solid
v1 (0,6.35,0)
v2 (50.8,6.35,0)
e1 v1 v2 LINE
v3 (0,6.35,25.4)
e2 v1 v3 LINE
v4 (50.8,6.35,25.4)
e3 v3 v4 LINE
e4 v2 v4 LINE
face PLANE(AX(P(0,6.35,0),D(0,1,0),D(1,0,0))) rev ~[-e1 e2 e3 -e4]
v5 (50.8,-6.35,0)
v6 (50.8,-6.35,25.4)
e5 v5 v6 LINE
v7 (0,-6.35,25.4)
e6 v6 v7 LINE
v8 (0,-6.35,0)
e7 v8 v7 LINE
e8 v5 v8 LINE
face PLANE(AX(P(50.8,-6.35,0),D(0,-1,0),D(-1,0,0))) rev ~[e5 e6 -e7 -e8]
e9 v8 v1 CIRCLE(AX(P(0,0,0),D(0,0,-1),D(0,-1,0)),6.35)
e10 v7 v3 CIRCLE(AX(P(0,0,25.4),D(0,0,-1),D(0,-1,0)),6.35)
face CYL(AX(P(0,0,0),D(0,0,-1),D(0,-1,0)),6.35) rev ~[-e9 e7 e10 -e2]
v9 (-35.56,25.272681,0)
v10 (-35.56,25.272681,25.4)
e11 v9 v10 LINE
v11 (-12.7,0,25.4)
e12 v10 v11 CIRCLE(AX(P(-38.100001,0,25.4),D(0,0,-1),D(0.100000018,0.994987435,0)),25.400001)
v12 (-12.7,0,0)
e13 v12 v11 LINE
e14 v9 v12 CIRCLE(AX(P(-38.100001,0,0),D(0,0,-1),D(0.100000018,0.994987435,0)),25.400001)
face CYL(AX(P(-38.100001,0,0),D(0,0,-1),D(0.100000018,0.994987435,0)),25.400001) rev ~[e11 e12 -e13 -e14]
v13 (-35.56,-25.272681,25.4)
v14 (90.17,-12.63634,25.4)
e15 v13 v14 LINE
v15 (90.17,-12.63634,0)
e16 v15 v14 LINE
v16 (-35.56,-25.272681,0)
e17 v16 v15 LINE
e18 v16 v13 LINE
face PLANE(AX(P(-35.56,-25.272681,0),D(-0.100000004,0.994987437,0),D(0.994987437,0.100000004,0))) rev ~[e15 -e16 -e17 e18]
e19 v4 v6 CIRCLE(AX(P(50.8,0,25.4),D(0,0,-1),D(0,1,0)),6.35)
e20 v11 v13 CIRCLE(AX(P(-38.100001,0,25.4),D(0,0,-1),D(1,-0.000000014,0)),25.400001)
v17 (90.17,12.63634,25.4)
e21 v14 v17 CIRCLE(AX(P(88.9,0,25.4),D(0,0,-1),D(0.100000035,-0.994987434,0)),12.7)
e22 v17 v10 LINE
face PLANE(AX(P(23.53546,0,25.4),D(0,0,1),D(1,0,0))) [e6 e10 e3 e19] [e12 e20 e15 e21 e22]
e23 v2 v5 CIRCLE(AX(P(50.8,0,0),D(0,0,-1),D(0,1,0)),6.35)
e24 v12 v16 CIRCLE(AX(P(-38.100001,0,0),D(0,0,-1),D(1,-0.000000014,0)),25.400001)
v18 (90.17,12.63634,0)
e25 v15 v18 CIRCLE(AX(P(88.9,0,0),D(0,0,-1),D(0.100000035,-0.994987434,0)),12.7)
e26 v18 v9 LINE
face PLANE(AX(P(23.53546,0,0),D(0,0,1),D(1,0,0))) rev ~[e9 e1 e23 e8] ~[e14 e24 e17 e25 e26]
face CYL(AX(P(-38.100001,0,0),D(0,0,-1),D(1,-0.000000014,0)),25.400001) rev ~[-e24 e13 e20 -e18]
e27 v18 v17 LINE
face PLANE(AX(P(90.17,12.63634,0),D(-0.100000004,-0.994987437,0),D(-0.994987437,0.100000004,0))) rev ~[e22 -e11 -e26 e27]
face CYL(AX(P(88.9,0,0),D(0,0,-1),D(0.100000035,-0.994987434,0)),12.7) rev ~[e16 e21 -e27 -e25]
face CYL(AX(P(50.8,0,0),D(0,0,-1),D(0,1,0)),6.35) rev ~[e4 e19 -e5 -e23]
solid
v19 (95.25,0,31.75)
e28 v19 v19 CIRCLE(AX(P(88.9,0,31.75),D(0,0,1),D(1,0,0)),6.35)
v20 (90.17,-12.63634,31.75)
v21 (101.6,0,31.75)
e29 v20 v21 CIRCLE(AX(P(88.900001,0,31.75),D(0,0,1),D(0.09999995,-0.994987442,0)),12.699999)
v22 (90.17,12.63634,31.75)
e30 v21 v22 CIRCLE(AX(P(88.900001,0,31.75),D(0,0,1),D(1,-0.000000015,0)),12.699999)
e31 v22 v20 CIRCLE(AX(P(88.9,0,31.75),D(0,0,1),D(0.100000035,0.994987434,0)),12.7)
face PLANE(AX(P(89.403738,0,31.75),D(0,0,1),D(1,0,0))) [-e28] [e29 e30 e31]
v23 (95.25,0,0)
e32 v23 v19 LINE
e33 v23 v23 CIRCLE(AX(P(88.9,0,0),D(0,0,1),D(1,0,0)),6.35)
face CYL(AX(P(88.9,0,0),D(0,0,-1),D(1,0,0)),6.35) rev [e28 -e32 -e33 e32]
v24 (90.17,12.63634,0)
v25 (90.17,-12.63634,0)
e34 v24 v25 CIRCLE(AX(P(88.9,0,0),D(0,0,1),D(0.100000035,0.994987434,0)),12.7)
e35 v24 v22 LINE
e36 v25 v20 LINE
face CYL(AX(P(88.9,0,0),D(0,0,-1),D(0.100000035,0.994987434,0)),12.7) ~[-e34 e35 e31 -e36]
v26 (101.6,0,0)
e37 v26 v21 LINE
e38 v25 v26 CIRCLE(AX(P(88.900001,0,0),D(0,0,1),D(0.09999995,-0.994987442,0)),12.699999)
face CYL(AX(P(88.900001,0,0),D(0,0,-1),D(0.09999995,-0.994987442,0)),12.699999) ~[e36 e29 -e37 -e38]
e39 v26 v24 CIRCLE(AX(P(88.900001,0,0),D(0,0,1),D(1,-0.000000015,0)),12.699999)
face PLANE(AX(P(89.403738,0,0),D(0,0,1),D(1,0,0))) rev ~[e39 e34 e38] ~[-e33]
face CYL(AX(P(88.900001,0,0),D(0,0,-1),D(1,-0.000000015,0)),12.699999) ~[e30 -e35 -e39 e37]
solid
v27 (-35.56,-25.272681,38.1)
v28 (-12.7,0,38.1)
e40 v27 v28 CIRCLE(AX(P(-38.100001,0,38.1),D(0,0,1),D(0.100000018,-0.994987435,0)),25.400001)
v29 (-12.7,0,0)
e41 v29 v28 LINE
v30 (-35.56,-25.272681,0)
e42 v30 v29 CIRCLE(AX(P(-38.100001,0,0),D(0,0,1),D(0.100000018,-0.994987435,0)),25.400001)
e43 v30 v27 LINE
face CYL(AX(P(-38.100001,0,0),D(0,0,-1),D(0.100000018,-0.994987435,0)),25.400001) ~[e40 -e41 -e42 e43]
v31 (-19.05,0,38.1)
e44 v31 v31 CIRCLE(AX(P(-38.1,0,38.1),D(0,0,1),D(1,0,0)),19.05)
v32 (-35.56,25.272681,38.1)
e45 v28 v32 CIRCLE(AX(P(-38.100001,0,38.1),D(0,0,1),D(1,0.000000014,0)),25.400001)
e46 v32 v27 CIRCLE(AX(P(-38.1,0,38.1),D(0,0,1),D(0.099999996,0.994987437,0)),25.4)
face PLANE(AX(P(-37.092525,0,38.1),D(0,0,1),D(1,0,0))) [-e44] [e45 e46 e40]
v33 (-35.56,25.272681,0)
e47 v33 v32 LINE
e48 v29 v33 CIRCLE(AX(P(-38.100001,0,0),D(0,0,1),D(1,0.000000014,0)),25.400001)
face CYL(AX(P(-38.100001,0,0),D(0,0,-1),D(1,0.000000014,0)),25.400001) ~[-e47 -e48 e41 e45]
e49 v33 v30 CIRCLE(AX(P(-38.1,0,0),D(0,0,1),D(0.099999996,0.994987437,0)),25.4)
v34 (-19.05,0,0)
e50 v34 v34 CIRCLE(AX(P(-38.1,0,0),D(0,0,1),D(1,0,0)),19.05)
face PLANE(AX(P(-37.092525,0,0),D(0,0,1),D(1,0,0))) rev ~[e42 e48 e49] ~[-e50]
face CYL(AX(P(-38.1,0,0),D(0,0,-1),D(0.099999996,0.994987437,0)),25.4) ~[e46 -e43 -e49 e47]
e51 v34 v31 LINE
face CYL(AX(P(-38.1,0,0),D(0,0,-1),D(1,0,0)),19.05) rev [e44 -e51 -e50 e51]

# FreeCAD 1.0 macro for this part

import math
import FreeCAD as App
import Part
import Sketcher

V = App.Vector
Q = App.Units.Quantity

doc = App.newDocument("Part")
body = doc.addObject("PartDesign::Body", "Body")

# Sketch on XY plane
sketch1 = body.newObject("Sketcher::SketchObject", "Sketch")
sketch1.AttachmentSupport = (doc.getObject("XY_Plane"), [""])
sketch1.MapMode = "FlatFace"
sketch1.addGeometry(Part.ArcOfCircle(Part.Circle(V(-38, 0, 0), V(0, 0, 1), 25), math.radians(0), math.radians(84)), False)
sketch1.addGeometry(Part.ArcOfCircle(Part.Circle(V(-38, 0, 0), V(0, 0, 1), 25), math.radians(84), math.radians(276)), False)
sketch1.addGeometry(Part.ArcOfCircle(Part.Circle(V(-38, 0, 0), V(0, 0, 1), 25), math.radians(-84), math.radians(0)), False)
sketch1.addGeometry(Part.Circle(V(-38, 0, 0), V(0, 0, 1), 19), False)
sketch1.addConstraint(Sketcher.Constraint("Tangent", 0, 2, 1, 1))
sketch1.addConstraint(Sketcher.Constraint("Tangent", 1, 2, 2, 1))
sketch1.addConstraint(Sketcher.Constraint("Tangent", 2, 2, 0, 1))
sketch1.addConstraint(Sketcher.Constraint("Coincident", 3, 3, 0, 3))
sketch1.addConstraint(Sketcher.Constraint("Symmetric", 0, 2, 1, 2, -1))
sketch1.addConstraint(Sketcher.Constraint("PointOnObject", 2, 2, -1))
sketch1.addConstraint(Sketcher.Constraint("Radius", 0, Q("1 in")))
sketch1.addConstraint(Sketcher.Constraint("Diameter", 3, Q("1.5 in")))
sketch1.addConstraint(Sketcher.Constraint("DistanceX", 0, 3, -1, 1, Q("1.5 in")))
sketch1.addConstraint(Sketcher.Constraint("DistanceX", 0, 2, -1, 1, Q("1.4 in")))
pad1 = body.newObject("PartDesign::Pad", "Pad")
pad1.Profile = sketch1
pad1.Length = Q("1.5 in")
body2 = doc.addObject("PartDesign::Body", "Body001")

# Sketch on XY plane
sketch2 = body2.newObject("Sketcher::SketchObject", "Sketch001")
sketch2.AttachmentSupport = (doc.getObject("XY_Plane001"), [""])
sketch2.MapMode = "FlatFace"
sketch2.addGeometry(Part.ArcOfCircle(Part.Circle(V(89, 0, 0), V(0, 0, 1), 13), math.radians(-84), math.radians(0)), False)
sketch2.addGeometry(Part.ArcOfCircle(Part.Circle(V(89, 0, 0), V(0, 0, 1), 13), math.radians(0), math.radians(84)), False)
sketch2.addGeometry(Part.ArcOfCircle(Part.Circle(V(89, 0, 0), V(0, 0, 1), 13), math.radians(84), math.radians(276)), False)
sketch2.addGeometry(Part.Circle(V(89, 0, 0), V(0, 0, 1), 6), False)
sketch2.addConstraint(Sketcher.Constraint("Tangent", 0, 2, 1, 1))
sketch2.addConstraint(Sketcher.Constraint("Tangent", 1, 2, 2, 1))
sketch2.addConstraint(Sketcher.Constraint("Tangent", 2, 2, 0, 1))
sketch2.addConstraint(Sketcher.Constraint("Coincident", 3, 3, 0, 3))
sketch2.addConstraint(Sketcher.Constraint("Symmetric", 1, 2, 2, 2, -1))
sketch2.addConstraint(Sketcher.Constraint("PointOnObject", 0, 2, -1))
sketch2.addConstraint(Sketcher.Constraint("Diameter", 3, Q("0.5 in")))
sketch2.addConstraint(Sketcher.Constraint("Radius", 0, Q("0.5 in")))
sketch2.addConstraint(Sketcher.Constraint("DistanceX", -1, 1, 0, 2, Q("4 in")))
sketch2.addConstraint(Sketcher.Constraint("DistanceX", -1, 1, 1, 2, Q("3.55 in")))
pad2 = body2.newObject("PartDesign::Pad", "Pad001")
pad2.Profile = sketch2
pad2.Length = Q("1.25 in")
body3 = doc.addObject("PartDesign::Body", "Body002")

# Sketch on XY plane
sketch3 = body3.newObject("Sketcher::SketchObject", "Sketch002")
sketch3.AttachmentSupport = (doc.getObject("XY_Plane002"), [""])
sketch3.MapMode = "FlatFace"
sketch3.addGeometry(Part.ArcOfCircle(Part.Circle(V(89, 0, 0), V(0, 0, 1), 13), math.radians(84), math.radians(276)), False)
sketch3.addGeometry(Part.LineSegment(V(90, 13, 0), V(-36, 25, 0)), False)
sketch3.addGeometry(Part.ArcOfCircle(Part.Circle(V(-38, 0, 0), V(0, 0, 1), 25), math.radians(0), math.radians(84)), False)
sketch3.addGeometry(Part.ArcOfCircle(Part.Circle(V(-38, 0, 0), V(0, 0, 1), 25), math.radians(-84), math.radians(0)), False)
sketch3.addGeometry(Part.LineSegment(V(-36, -25, 0), V(90, -13, 0)), False)
sketch3.addGeometry(Part.LineSegment(V(51, -6, 0), V(0, -6, 0)), False)
sketch3.addGeometry(Part.ArcOfCircle(Part.Circle(V(0, 0, 0), V(0, 0, 1), 6), math.radians(90), math.radians(270)), False)
sketch3.addGeometry(Part.LineSegment(V(0, 6, 0), V(51, 6, 0)), False)
sketch3.addGeometry(Part.ArcOfCircle(Part.Circle(V(51, 0, 0), V(0, 0, 1), 6), math.radians(-90), math.radians(90)), False)
sketch3.addConstraint(Sketcher.Constraint("Tangent", 0, 1, 1, 1))
sketch3.addConstraint(Sketcher.Constraint("Tangent", 1, 2, 2, 2))
sketch3.addConstraint(Sketcher.Constraint("Tangent", 2, 1, 3, 2))
sketch3.addConstraint(Sketcher.Constraint("Tangent", 3, 1, 4, 1))
sketch3.addConstraint(Sketcher.Constraint("Tangent", 4, 2, 0, 2))
sketch3.addConstraint(Sketcher.Constraint("Tangent", 5, 2, 6, 2))
sketch3.addConstraint(Sketcher.Constraint("Tangent", 6, 1, 7, 1))
sketch3.addConstraint(Sketcher.Constraint("Tangent", 7, 2, 8, 2))
sketch3.addConstraint(Sketcher.Constraint("Tangent", 8, 1, 5, 1))
sketch3.addConstraint(Sketcher.Constraint("Horizontal", 5))
sketch3.addConstraint(Sketcher.Constraint("Horizontal", 7))
sketch3.addConstraint(Sketcher.Constraint("Coincident", 6, 3, -1, 1))
sketch3.addConstraint(Sketcher.Constraint("Equal", 2, 3))
sketch3.addConstraint(Sketcher.Constraint("Symmetric", 1, 2, 3, 1, -1))
sketch3.addConstraint(Sketcher.Constraint("PointOnObject", 2, 1, -1))
sketch3.addConstraint(Sketcher.Constraint("Radius", 2, Q("1 in")))
sketch3.addConstraint(Sketcher.Constraint("Radius", 0, Q("0.5 in")))
sketch3.addConstraint(Sketcher.Constraint("DistanceX", 5, 2, 5, 1, Q("2 in")))
sketch3.addConstraint(Sketcher.Constraint("Radius", 6, Q("0.25 in")))
sketch3.addConstraint(Sketcher.Constraint("DistanceX", 2, 3, 0, 3, Q("5 in")))
sketch3.addConstraint(Sketcher.Constraint("DistanceX", -1, 1, 0, 3, Q("3.5 in")))
pad3 = body3.newObject("PartDesign::Pad", "Pad002")
pad3.Profile = sketch3
pad3.Length = Q("1 in")

doc.recompute()
